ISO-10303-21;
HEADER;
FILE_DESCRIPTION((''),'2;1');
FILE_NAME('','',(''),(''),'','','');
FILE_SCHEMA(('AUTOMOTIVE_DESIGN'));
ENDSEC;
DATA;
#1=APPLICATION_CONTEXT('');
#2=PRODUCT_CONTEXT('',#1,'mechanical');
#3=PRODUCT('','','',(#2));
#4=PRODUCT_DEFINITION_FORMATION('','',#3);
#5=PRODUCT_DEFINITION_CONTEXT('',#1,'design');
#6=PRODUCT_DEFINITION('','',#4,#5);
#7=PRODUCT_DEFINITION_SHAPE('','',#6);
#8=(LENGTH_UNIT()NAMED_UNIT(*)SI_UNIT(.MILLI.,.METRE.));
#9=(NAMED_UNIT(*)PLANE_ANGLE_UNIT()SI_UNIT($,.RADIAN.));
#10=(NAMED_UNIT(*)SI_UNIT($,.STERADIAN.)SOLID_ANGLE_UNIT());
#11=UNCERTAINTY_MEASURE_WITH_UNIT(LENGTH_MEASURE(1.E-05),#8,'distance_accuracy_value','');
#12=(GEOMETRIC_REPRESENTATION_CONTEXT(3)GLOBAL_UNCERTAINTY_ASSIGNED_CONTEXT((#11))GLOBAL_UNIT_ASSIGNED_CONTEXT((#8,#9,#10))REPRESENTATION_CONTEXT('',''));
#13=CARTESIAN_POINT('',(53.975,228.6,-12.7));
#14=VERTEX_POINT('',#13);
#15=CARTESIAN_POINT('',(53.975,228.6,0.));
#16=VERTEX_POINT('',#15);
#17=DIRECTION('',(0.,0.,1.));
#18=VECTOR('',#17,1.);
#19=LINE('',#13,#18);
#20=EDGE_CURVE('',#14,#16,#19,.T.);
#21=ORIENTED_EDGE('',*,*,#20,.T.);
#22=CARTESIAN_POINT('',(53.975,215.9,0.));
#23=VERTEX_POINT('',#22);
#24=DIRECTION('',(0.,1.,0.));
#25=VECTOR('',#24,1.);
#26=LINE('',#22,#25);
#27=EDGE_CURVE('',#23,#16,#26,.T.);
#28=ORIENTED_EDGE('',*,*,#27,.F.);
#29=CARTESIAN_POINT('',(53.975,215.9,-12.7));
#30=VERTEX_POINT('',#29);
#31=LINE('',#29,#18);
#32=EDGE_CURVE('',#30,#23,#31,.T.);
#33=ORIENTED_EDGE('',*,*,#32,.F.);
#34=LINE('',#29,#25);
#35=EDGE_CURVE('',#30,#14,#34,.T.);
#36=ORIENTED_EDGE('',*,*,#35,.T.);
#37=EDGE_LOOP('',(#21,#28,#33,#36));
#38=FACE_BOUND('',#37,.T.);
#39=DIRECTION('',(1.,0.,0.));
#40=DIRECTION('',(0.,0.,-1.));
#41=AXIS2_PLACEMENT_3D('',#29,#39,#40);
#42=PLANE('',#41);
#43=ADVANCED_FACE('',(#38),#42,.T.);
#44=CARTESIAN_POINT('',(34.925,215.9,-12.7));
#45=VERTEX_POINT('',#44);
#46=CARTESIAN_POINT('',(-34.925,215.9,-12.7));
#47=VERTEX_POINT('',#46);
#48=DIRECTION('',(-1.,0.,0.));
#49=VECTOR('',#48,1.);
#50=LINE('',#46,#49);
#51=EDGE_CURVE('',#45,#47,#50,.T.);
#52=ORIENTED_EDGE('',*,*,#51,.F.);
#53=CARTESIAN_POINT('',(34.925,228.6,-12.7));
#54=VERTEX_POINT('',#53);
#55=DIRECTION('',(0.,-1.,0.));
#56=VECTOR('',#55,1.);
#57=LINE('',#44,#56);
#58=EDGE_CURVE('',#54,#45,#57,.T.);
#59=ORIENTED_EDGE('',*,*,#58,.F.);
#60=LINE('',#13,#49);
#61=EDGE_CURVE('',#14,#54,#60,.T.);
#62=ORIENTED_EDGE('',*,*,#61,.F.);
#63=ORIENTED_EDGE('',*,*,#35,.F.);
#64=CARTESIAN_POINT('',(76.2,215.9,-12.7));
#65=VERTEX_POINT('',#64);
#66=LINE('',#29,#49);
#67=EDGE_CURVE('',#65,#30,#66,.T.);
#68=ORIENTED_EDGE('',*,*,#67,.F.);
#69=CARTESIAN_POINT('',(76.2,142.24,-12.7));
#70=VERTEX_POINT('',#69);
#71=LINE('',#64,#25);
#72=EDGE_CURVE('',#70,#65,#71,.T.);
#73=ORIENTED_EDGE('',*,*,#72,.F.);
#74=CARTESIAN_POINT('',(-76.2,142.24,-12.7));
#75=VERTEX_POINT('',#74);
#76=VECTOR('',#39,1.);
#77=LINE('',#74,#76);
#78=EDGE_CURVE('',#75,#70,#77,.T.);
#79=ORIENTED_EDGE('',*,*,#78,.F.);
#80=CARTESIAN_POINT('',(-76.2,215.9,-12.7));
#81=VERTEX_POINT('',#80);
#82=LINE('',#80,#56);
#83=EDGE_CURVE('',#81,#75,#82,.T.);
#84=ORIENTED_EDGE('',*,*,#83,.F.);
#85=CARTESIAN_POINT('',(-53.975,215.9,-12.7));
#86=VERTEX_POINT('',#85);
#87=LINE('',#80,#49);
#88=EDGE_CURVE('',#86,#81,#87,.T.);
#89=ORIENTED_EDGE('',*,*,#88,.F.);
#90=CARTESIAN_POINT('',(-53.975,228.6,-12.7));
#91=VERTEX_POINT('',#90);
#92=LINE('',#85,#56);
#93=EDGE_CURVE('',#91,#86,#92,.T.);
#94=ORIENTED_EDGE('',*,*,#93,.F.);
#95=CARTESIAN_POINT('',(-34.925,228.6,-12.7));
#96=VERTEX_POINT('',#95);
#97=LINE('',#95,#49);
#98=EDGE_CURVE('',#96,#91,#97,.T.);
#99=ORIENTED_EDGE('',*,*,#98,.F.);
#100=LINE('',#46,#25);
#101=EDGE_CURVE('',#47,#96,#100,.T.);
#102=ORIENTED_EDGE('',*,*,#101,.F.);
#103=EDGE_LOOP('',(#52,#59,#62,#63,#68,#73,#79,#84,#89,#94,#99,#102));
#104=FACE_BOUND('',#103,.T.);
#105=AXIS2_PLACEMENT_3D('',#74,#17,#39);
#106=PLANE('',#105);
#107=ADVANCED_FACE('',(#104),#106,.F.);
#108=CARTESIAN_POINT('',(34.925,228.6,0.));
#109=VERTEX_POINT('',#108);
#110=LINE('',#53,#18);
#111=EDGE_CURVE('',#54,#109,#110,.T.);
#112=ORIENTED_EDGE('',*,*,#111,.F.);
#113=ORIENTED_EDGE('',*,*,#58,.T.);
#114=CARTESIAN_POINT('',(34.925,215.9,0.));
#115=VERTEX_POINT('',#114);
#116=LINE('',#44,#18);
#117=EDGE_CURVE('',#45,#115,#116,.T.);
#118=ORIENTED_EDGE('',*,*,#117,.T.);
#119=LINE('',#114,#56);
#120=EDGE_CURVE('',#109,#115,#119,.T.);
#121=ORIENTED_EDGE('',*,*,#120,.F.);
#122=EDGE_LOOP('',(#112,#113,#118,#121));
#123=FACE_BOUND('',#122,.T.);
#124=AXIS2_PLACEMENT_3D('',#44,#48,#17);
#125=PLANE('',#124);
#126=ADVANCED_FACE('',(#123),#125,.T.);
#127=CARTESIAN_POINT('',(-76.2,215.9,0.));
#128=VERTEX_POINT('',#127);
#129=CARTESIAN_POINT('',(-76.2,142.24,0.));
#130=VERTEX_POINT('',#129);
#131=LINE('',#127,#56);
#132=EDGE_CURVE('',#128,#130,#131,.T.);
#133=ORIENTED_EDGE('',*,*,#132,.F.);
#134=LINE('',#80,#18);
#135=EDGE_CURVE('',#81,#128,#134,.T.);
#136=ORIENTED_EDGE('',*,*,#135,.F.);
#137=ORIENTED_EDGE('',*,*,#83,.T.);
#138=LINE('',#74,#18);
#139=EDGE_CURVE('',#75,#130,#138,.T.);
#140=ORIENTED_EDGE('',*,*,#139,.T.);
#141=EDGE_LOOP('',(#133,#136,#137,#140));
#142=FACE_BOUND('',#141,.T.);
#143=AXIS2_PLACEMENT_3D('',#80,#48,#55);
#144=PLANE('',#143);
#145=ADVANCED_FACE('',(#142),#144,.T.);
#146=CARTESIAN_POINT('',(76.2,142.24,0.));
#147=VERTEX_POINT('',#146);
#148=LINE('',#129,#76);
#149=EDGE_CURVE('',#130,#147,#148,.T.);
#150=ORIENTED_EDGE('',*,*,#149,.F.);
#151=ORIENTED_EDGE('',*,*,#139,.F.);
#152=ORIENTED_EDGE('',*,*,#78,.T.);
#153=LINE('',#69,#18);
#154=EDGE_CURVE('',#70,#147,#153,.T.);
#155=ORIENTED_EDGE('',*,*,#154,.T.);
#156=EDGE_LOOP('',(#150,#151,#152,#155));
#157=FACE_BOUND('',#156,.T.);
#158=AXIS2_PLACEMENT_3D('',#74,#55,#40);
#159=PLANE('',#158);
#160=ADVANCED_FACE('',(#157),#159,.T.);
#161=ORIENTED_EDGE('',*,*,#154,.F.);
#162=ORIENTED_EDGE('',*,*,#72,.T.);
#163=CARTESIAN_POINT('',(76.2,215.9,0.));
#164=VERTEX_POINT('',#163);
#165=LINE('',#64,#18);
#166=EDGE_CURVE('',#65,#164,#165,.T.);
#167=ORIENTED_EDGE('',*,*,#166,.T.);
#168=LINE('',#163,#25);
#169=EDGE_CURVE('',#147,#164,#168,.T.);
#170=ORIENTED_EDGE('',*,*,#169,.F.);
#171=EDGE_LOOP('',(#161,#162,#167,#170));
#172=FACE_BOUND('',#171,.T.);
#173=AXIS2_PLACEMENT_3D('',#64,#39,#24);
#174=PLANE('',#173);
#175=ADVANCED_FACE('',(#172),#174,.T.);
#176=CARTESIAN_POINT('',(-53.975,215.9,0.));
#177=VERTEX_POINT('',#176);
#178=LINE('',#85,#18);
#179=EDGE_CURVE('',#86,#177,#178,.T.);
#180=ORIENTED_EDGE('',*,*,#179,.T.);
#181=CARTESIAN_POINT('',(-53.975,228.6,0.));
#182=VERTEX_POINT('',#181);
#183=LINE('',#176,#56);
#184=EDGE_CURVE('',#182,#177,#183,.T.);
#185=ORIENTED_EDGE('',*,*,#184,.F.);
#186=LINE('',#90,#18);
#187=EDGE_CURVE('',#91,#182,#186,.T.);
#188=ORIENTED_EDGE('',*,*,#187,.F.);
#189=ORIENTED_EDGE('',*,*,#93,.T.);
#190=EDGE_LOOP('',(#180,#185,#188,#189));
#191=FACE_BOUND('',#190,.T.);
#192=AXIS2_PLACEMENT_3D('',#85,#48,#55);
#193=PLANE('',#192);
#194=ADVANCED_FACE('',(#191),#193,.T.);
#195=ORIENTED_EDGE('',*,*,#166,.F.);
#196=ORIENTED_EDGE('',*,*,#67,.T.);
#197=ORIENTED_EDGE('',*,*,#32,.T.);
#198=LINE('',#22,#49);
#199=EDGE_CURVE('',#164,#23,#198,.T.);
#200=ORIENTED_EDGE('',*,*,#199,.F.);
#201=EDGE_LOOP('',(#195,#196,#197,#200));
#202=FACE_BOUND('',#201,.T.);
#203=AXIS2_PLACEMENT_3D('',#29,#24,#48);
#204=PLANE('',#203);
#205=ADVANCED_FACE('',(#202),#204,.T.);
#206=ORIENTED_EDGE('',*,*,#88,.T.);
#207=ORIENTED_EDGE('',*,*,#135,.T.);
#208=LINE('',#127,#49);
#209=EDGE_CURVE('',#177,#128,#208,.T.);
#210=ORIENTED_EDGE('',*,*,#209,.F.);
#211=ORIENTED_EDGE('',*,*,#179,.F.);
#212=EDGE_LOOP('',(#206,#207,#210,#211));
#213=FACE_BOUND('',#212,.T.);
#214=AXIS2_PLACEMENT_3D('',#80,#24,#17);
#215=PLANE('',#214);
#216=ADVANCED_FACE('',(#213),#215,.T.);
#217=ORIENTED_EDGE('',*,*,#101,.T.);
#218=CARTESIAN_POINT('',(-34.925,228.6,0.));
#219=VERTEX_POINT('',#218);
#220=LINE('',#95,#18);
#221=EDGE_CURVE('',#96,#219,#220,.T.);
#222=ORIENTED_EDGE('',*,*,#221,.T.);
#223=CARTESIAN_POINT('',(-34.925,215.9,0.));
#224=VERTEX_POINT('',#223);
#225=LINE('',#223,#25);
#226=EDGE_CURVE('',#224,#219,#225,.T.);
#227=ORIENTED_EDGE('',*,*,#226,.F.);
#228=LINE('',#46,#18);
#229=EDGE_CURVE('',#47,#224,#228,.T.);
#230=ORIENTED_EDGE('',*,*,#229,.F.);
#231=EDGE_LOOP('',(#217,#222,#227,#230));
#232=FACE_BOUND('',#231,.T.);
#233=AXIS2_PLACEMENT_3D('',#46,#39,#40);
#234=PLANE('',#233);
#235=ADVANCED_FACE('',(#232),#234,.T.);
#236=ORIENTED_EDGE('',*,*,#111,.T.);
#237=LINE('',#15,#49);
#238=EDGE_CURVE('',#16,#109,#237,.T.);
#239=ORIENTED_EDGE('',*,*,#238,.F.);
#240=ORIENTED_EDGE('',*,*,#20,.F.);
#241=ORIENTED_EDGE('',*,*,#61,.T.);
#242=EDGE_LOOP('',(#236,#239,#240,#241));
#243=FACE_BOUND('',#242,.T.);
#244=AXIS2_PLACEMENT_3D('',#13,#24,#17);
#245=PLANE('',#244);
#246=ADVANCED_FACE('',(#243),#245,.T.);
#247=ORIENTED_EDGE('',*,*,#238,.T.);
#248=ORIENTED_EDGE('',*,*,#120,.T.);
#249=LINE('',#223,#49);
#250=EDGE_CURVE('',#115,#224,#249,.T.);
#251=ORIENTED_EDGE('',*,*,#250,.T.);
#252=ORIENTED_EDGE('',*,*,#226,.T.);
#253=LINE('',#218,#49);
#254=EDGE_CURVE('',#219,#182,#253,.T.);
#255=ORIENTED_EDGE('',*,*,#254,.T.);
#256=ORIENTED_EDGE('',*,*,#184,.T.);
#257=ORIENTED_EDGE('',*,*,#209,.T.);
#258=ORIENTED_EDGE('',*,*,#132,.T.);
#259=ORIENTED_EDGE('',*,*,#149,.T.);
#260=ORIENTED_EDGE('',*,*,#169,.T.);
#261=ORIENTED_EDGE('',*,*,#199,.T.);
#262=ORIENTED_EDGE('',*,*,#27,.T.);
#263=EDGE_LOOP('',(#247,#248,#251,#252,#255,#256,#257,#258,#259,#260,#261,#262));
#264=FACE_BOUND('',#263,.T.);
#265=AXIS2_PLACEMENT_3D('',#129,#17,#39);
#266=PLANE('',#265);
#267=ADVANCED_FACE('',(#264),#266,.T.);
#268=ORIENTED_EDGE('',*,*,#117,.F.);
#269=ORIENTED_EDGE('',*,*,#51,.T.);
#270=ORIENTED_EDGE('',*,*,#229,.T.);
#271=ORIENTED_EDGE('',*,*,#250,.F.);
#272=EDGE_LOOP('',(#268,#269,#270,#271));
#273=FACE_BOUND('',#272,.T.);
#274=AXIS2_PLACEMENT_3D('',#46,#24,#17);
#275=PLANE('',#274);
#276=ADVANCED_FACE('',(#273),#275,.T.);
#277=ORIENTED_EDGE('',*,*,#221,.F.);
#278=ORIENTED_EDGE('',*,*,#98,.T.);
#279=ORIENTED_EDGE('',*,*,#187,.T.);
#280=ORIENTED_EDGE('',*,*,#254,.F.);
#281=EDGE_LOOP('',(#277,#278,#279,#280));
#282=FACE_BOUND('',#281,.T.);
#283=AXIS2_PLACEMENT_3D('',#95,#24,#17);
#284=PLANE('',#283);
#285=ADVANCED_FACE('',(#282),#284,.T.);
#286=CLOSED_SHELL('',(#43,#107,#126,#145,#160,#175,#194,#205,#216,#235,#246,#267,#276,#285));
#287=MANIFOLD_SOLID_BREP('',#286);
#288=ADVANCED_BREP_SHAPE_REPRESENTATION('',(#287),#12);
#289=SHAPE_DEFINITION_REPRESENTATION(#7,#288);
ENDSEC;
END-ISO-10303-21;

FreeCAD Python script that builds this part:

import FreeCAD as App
import Part
import Sketcher

V = App.Vector
Q = App.Units.Quantity

doc = App.newDocument("Part")
body = doc.addObject("PartDesign::Body", "Body")

# Sketch on XY plane
sketch1 = body.newObject("Sketcher::SketchObject", "Sketch")
sketch1.AttachmentSupport = (doc.getObject("XY_Plane"), [""])
sketch1.MapMode = "FlatFace"
sketch1.addGeometry([
    Part.LineSegment(V(-54, 216, 0), V(-76, 216, 0)),  # 0
    Part.LineSegment(V(-76, 216, 0), V(-76, 142, 0)),  # 1
    Part.LineSegment(V(-76, 142, 0), V(76, 142, 0)),  # 2
    Part.LineSegment(V(76, 142, 0), V(76, 216, 0)),  # 3
    Part.LineSegment(V(76, 216, 0), V(54, 216, 0)),  # 4
    Part.LineSegment(V(54, 216, 0), V(54, 229, 0)),  # 5
    Part.LineSegment(V(54, 229, 0), V(35, 229, 0)),  # 6
    Part.LineSegment(V(35, 229, 0), V(35, 216, 0)),  # 7
    Part.LineSegment(V(35, 216, 0), V(-35, 216, 0)),  # 8
    Part.LineSegment(V(-35, 216, 0), V(-35, 229, 0)),  # 9
    Part.LineSegment(V(-35, 229, 0), V(-54, 229, 0)),  # 10
    Part.LineSegment(V(-54, 229, 0), V(-54, 216, 0)),  # 11
], False)
sketch1.addConstraint([
    Sketcher.Constraint("Coincident", 0, 2, 1, 1),
    Sketcher.Constraint("Coincident", 1, 2, 2, 1),
    Sketcher.Constraint("Coincident", 2, 2, 3, 1),
    Sketcher.Constraint("Coincident", 3, 2, 4, 1),
    Sketcher.Constraint("Coincident", 4, 2, 5, 1),
    Sketcher.Constraint("Coincident", 5, 2, 6, 1),
    Sketcher.Constraint("Coincident", 6, 2, 7, 1),
    Sketcher.Constraint("Coincident", 7, 2, 8, 1),
    Sketcher.Constraint("Coincident", 8, 2, 9, 1),
    Sketcher.Constraint("Coincident", 9, 2, 10, 1),
    Sketcher.Constraint("Coincident", 10, 2, 11, 1),
    Sketcher.Constraint("Coincident", 11, 2, 0, 1),
    Sketcher.Constraint("Horizontal", 0),
    Sketcher.Constraint("Vertical", 1),
    Sketcher.Constraint("Horizontal", 2),
    Sketcher.Constraint("Vertical", 3),
    Sketcher.Constraint("Horizontal", 4),
    Sketcher.Constraint("Vertical", 5),
    Sketcher.Constraint("Horizontal", 6),
    Sketcher.Constraint("Vertical", 7),
    Sketcher.Constraint("Horizontal", 8),
    Sketcher.Constraint("Vertical", 9),
    Sketcher.Constraint("Horizontal", 10),
    Sketcher.Constraint("Vertical", 11),
    Sketcher.Constraint("Symmetric", 0, 2, 3, 2, -2),
    Sketcher.Constraint("Symmetric", 6, 2, 9, 2, -2),
    Sketcher.Constraint("Horizontal", 4, 2, 7, 2),
    Sketcher.Constraint("Equal", 0, 4),
    Sketcher.Constraint("DistanceX", 2, 1, 2, 2, Q("6 in")),
    Sketcher.Constraint("DistanceY", 1, 2, 1, 1, Q("2.9 in")),
    Sketcher.Constraint("DistanceY", 5, 1, 5, 2, Q("0.5 in")),
    Sketcher.Constraint("DistanceY", -1, 1, 5, 2, Q("9 in")),
    Sketcher.Constraint("DistanceX", 6, 2, 6, 1, Q("0.75 in")),
    Sketcher.Constraint("DistanceX", 8, 2, 8, 1, Q("2.75 in")),
])
pad1 = body.newObject("PartDesign::Pad", "Pad")
pad1.Profile = sketch1
pad1.Length = Q("0.5 in")
pad1.Reversed = True

doc.recompute()
